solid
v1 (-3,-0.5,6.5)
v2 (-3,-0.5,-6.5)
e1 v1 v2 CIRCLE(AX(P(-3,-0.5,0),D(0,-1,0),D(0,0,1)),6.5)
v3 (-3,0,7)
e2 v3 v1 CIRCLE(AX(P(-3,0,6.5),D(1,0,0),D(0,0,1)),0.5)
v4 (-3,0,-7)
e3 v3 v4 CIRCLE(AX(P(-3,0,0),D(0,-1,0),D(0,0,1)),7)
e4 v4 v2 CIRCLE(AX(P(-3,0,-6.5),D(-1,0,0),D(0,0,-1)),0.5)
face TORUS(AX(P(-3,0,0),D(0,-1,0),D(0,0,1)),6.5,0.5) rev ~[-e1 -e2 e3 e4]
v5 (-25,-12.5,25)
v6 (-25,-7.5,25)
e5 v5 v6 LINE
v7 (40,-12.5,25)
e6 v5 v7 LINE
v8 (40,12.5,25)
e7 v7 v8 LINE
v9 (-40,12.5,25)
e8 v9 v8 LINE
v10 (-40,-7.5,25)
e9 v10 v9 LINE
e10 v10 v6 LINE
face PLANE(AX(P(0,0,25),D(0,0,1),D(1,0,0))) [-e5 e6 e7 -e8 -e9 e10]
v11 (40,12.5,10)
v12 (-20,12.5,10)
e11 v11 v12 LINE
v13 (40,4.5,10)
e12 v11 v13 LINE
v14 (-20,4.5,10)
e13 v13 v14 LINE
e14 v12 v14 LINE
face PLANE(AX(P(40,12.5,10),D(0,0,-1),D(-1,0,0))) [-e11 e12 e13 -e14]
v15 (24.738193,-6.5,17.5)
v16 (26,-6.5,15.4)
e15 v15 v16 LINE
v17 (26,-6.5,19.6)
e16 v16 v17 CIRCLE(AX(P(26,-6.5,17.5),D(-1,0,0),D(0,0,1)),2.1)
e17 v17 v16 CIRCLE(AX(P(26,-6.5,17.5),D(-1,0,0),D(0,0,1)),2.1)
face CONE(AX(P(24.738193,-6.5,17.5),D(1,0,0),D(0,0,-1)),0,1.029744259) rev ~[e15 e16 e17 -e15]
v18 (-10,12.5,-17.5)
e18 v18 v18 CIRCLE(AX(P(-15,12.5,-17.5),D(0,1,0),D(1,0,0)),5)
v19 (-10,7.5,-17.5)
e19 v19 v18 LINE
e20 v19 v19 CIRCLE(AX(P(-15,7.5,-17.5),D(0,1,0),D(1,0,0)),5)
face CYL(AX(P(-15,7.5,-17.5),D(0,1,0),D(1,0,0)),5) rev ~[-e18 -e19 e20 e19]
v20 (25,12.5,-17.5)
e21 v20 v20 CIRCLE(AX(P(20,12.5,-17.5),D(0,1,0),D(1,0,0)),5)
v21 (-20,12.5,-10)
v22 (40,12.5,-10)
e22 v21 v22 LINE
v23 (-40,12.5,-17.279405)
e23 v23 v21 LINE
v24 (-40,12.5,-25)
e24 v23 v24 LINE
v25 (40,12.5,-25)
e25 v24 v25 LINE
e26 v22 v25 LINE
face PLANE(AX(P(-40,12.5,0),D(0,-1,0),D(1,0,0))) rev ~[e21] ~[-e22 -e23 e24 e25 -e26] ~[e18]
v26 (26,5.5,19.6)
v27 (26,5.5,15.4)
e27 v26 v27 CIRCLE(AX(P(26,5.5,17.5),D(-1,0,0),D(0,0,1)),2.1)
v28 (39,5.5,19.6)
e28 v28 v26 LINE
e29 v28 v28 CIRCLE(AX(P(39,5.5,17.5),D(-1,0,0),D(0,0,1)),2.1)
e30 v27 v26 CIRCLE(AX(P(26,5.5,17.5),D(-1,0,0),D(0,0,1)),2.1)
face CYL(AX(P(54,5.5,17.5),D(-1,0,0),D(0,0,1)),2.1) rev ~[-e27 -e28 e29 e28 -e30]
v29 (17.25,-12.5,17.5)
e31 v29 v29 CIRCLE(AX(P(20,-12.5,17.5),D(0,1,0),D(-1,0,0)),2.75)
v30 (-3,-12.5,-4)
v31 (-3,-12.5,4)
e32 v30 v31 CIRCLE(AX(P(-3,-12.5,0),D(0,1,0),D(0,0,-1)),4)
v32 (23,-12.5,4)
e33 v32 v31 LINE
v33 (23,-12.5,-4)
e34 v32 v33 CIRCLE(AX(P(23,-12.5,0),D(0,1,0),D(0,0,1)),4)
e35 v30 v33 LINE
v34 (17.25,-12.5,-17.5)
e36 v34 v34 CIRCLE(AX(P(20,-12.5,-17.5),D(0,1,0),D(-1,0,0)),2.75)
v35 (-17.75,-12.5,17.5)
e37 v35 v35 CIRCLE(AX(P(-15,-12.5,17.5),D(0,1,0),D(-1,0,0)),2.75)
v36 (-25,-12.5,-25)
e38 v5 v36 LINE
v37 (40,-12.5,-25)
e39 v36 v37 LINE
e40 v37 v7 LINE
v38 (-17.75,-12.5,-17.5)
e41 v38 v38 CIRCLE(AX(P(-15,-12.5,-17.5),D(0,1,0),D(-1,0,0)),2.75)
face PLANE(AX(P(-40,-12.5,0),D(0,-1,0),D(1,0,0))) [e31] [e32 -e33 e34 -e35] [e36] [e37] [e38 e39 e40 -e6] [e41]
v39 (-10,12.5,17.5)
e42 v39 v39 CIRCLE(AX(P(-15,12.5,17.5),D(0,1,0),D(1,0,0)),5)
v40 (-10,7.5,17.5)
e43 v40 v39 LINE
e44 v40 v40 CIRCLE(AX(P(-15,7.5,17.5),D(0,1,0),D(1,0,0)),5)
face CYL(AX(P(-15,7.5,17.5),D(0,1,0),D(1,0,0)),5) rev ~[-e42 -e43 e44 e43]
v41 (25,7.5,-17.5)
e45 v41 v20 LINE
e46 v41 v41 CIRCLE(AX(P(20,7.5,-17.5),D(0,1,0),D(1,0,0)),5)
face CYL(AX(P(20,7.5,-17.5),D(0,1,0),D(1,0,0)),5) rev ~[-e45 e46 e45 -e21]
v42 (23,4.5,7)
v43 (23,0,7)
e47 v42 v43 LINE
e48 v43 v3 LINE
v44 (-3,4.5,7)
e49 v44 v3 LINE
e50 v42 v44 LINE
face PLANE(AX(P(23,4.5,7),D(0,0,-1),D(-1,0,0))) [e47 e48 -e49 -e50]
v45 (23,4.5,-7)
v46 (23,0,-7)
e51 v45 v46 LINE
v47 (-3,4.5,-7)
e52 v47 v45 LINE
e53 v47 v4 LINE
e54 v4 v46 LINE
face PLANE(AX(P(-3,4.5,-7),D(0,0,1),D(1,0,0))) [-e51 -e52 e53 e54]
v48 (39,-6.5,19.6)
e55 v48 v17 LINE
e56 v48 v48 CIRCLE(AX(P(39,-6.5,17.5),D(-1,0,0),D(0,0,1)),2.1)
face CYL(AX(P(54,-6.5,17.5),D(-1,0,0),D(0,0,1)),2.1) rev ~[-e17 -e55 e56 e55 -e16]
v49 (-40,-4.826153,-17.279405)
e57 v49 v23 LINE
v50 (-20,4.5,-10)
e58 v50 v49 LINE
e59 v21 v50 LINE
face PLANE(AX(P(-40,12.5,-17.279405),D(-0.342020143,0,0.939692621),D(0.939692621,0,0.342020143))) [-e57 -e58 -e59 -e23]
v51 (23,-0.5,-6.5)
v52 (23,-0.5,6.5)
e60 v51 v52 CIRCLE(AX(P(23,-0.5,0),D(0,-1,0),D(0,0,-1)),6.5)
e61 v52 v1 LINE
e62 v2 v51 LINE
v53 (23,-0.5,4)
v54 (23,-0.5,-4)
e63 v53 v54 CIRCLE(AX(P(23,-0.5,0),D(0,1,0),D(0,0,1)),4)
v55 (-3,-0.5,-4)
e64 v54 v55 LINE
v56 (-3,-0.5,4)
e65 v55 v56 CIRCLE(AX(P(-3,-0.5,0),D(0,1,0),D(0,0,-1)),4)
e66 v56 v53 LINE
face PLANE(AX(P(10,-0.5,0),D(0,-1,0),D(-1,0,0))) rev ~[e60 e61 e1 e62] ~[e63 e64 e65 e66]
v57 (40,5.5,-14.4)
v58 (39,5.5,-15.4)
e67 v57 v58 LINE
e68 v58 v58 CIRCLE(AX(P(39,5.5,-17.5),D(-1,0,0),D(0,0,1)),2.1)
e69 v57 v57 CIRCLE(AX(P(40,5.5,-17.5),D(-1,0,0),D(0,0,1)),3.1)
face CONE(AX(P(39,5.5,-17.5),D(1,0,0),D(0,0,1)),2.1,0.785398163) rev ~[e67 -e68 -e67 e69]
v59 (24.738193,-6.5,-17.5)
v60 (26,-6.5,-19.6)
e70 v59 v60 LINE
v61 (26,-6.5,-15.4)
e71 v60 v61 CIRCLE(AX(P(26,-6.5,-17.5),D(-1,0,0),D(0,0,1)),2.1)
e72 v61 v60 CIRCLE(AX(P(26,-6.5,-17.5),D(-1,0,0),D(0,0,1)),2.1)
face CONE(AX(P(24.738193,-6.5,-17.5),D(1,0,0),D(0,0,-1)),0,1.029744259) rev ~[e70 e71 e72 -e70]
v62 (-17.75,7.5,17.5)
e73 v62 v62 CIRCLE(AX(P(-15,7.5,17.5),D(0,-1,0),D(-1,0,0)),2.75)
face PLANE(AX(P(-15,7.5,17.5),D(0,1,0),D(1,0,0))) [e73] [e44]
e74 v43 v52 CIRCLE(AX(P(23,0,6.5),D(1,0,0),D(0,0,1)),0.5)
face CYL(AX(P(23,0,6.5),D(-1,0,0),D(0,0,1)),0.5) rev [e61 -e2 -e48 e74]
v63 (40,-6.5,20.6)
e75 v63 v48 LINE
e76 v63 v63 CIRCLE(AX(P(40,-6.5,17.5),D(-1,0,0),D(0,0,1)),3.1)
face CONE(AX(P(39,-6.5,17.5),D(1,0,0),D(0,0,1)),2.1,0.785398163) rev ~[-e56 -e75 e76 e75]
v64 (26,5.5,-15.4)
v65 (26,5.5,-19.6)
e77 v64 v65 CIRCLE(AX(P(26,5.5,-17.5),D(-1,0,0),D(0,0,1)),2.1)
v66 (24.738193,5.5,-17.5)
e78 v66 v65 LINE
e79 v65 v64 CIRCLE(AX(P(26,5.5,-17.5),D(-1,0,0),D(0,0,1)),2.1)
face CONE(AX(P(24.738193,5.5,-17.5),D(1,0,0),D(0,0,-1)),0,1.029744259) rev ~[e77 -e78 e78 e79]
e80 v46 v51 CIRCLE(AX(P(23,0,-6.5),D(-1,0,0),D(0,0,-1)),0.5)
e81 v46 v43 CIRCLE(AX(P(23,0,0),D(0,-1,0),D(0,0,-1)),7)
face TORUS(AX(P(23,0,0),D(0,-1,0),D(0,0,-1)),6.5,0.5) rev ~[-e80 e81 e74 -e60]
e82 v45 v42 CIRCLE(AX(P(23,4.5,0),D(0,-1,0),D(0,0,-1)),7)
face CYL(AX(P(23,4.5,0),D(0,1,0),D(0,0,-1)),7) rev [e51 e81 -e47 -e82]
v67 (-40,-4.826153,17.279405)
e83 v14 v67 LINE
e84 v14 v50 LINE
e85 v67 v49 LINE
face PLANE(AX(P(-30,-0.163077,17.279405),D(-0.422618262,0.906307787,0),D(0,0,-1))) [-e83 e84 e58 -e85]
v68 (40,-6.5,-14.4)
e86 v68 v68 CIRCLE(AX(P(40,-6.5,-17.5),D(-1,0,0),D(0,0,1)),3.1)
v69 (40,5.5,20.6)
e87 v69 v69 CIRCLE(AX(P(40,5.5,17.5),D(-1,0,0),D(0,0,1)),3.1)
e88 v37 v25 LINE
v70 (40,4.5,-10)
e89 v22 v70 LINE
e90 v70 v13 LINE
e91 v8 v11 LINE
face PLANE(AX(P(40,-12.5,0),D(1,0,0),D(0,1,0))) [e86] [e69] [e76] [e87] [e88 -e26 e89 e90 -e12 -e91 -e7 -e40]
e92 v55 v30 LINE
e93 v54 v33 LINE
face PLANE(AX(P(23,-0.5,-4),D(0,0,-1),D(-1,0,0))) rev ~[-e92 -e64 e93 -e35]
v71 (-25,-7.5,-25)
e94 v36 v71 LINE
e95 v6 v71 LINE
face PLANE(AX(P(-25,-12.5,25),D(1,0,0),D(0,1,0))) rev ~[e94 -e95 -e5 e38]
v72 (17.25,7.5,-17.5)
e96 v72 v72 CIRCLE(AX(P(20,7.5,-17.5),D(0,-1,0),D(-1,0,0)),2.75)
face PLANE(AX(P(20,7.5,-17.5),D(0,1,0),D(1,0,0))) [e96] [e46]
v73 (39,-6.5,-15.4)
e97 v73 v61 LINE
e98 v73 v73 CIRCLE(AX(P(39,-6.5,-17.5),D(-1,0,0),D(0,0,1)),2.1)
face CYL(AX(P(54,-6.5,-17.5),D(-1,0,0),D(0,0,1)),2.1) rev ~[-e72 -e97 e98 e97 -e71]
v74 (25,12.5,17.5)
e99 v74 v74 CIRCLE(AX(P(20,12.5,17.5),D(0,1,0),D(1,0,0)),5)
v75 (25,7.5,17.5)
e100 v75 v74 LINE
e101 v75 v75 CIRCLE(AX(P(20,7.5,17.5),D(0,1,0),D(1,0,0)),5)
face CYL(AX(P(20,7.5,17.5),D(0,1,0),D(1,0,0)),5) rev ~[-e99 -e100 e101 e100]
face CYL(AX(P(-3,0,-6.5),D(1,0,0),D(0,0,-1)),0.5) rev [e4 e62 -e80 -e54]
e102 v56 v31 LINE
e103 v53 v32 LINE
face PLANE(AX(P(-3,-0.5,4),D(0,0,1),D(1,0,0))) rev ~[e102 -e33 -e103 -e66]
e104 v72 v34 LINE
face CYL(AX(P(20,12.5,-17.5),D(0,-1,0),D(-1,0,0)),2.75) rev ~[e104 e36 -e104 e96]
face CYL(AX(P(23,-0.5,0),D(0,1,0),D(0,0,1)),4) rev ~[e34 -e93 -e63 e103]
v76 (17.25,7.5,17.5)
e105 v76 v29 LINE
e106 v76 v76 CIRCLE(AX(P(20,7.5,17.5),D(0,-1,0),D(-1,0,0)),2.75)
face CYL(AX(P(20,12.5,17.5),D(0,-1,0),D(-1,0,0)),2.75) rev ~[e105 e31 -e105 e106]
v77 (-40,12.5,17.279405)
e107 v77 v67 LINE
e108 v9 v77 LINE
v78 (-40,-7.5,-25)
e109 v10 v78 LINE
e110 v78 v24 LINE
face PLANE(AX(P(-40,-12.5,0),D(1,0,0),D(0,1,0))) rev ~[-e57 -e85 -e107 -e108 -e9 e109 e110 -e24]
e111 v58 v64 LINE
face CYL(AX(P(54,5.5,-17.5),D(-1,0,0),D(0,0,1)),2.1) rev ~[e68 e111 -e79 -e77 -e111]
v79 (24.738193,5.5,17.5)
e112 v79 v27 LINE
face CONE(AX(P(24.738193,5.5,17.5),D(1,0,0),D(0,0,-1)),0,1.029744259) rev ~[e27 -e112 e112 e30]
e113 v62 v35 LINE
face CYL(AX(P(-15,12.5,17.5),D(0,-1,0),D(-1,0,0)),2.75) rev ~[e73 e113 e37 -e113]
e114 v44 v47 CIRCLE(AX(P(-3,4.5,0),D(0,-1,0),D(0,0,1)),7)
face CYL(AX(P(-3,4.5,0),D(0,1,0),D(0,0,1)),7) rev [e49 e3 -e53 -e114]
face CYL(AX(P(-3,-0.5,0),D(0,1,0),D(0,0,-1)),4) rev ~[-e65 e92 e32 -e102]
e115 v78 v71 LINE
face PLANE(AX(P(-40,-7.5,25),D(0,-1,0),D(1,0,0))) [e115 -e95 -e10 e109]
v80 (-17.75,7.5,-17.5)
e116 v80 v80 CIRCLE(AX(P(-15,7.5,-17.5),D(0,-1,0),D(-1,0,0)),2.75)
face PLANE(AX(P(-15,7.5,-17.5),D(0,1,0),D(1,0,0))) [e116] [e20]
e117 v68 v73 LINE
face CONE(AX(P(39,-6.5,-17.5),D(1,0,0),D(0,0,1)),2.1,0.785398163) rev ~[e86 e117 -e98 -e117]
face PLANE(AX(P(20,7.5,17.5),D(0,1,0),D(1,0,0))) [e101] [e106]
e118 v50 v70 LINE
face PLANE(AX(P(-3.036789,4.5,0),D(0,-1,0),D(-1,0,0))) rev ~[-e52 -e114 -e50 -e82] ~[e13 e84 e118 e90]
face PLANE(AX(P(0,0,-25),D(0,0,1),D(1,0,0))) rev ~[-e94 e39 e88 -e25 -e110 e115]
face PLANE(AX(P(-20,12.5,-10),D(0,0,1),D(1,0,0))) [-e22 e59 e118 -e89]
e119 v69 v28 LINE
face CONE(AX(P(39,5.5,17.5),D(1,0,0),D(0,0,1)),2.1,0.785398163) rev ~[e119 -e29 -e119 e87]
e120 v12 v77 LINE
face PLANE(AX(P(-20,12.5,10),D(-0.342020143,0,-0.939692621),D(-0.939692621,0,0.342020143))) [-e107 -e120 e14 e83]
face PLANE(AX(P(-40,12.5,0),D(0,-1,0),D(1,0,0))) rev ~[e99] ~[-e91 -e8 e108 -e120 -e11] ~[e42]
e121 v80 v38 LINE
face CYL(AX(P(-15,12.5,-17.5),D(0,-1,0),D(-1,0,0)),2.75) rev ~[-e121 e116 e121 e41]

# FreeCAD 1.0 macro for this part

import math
import FreeCAD as App
import Part
import Sketcher
from FreeCAD import Vector
Q = App.Units.Quantity


def edges_at(feature, points):
    """Names of the edges that pass closest to the given points."""
    edges = feature.Shape.Edges
    near = lambda p: min(range(len(edges)), key=lambda i: edges[i].distToShape(Part.Vertex(*p))[0])
    return sorted({f"Edge{near(p) + 1}" for p in points})


def add_polygon(sketch, points):
    """Adds a closed chain of lines whose ends are joined by coincident constraints."""
    first, n = sketch.GeometryCount, len(points)
    for a, b in zip(points, points[1:] + points[:1]):
        sketch.addGeometry(Part.LineSegment(App.Vector(*a, 0), App.Vector(*b, 0)), False)
    for i in range(n):
        sketch.addConstraint(Sketcher.Constraint("Coincident", first + i, 2, first + (i + 1) % n, 1))

doc = App.newDocument("Part")
body = doc.addObject("PartDesign::Body", "Body")

sketch1 = doc.addObject("Sketcher::SketchObject", "Sketch")
body.addObject(sketch1)
sketch1.AttachmentSupport = (doc.XY_Plane, [""])
sketch1.MapMode = "FlatFace"
add_polygon(sketch1, [(-40, 12), (-40, -12), (40, -12), (40, 12)])
sketch1.addConstraint([
    Sketcher.Constraint("Vertical", 0),
    Sketcher.Constraint("Horizontal", 1),
    Sketcher.Constraint("Vertical", 2),
    Sketcher.Constraint("Horizontal", 3),
    Sketcher.Constraint("Symmetric", 0, 2, 2, 2, -1, 1),
    Sketcher.Constraint("DistanceX", 1, 1, 1, 2, Q("80 mm")),
    Sketcher.Constraint("DistanceY", 0, 2, 0, 1, Q("25 mm")),
])
pad1 = doc.addObject("PartDesign::Pad", "Pad")
body.addObject(pad1)
pad1.Profile = sketch1
pad1.Length = 50
pad1.Midplane = True

sketch2 = doc.addObject("Sketcher::SketchObject", "Sketch001")
body.addObject(sketch2)
sketch2.AttachmentSupport = (doc.XY_Plane, [""])
sketch2.MapMode = "FlatFace"
sketch2.AttachmentOffset = App.Placement(Vector(0, 0, 25), App.Rotation())
add_polygon(sketch2, [(-40, -8), (-40, -12), (-25, -12), (-25, -8)])
sketch2.addConstraint([
    Sketcher.Constraint("Vertical", 0),
    Sketcher.Constraint("Horizontal", 1),
    Sketcher.Constraint("Vertical", 2),
    Sketcher.Constraint("Horizontal", 3),
    Sketcher.Constraint("DistanceX", 1, 1, 1, 2, Q("15 mm")),
    Sketcher.Constraint("DistanceY", 0, 2, 0, 1, Q("5 mm")),
    Sketcher.Constraint("DistanceX", 0, 2, -1, 1, Q("40 mm")),
    Sketcher.Constraint("DistanceY", 0, 2, -1, 1, Q("12.5 mm")),
])
pocket1 = doc.addObject("PartDesign::Pocket", "Pocket")
body.addObject(pocket1)
pocket1.Profile = sketch2
pocket1.Type = "ThroughAll"

sketch3 = doc.addObject("Sketcher::SketchObject", "Sketch002")
body.addObject(sketch3)
sketch3.AttachmentSupport = (doc.XZ_Plane, [""])
sketch3.MapMode = "FlatFace"
sketch3.AttachmentOffset = App.Placement(Vector(0, 0, -12.5), App.Rotation())
add_polygon(sketch3, [(-20, -10), (-40, -17), (-40, 17), (-20, 10), (40, 10), (40, -10)])
sketch3.addConstraint([
    Sketcher.Constraint("Vertical", 1),
    Sketcher.Constraint("Horizontal", 3),
    Sketcher.Constraint("Vertical", 4),
    Sketcher.Constraint("Horizontal", 5),
    Sketcher.Constraint("Symmetric", 2, 2, 5, 2, -1),
    Sketcher.Constraint("Equal", 0, 2),
    Sketcher.Constraint("DistanceX", 3, 1, 3, 2, Q("60 mm")),
    Sketcher.Constraint("DistanceY", 4, 2, 4, 1, Q("20 mm")),
    Sketcher.Constraint("Angle", 0, Q("-160 deg")),
    Sketcher.Constraint("DistanceX", 0, 2, -1, 1, Q("40 mm")),
    Sketcher.Constraint("DistanceX", 2, 2, -1, 1, Q("20 mm")),
])
pocket2 = doc.addObject("PartDesign::Pocket", "Pocket001")
body.addObject(pocket2)
pocket2.Profile = sketch3
pocket2.Length = 8
pocket2.Reversed = True
doc.recompute()

chamfer = doc.addObject("PartDesign::Chamfer", "Chamfer")
body.addObject(chamfer)
chamfer.Base = (pocket2, edges_at(pocket2, [(-40, 4.5, 0)]))
chamfer.ChamferType = "Two distances"
chamfer.Size = 20
chamfer.Size2 = 9.326153
chamfer.FlipDirection = True

sketch4 = doc.addObject("Sketcher::SketchObject", "Sketch003")
body.addObject(sketch4)
sketch4.AttachmentSupport = (doc.XZ_Plane, [""])
sketch4.MapMode = "FlatFace"
sketch4.AttachmentOffset = App.Placement(Vector(0, 0, -4.5), App.Rotation())
sketch4.addGeometry([
    Part.LineSegment(Vector(23, -7, 0), Vector(-3, -7, 0)),
    Part.ArcOfCircle(Part.Circle(Vector(-3, 0, 0), Vector(0, 0, 1), 7), math.radians(90), math.radians(270)),
    Part.LineSegment(Vector(-3, 7, 0), Vector(23, 7, 0)),
    Part.ArcOfCircle(Part.Circle(Vector(23, 0, 0), Vector(0, 0, 1), 7), math.radians(-90), math.radians(90)),
], False)
sketch4.addConstraint([
    Sketcher.Constraint("Tangent", 0, 2, 1, 2),
    Sketcher.Constraint("Tangent", 1, 1, 2, 1),
    Sketcher.Constraint("Tangent", 2, 2, 3, 2),
    Sketcher.Constraint("Tangent", 3, 1, 0, 1),
    Sketcher.Constraint("Horizontal", 0),
    Sketcher.Constraint("Horizontal", 2),
    Sketcher.Constraint("PointOnObject", 1, 3, -1),
    Sketcher.Constraint("Radius", 1, Q("7 mm")),
    Sketcher.Constraint("DistanceX", 0, 2, 0, 1, Q("26 mm")),
    Sketcher.Constraint("DistanceX", 1, 3, -1, 1, Q("3 mm")),
])
pocket3 = doc.addObject("PartDesign::Pocket", "Pocket002")
body.addObject(pocket3)
pocket3.Profile = sketch4
pocket3.Length = 5
pocket3.Reversed = True

sketch5 = doc.addObject("Sketcher::SketchObject", "Sketch004")
body.addObject(sketch5)
sketch5.AttachmentSupport = (doc.XZ_Plane, [""])
sketch5.MapMode = "FlatFace"
sketch5.AttachmentOffset = App.Placement(Vector(0, 0, 0.5), App.Rotation())
sketch5.addGeometry([
    Part.LineSegment(Vector(-3, 4, 0), Vector(23, 4, 0)),
    Part.ArcOfCircle(Part.Circle(Vector(23, 0, 0), Vector(0, 0, 1), 4), math.radians(-90), math.radians(90)),
    Part.LineSegment(Vector(23, -4, 0), Vector(-3, -4, 0)),
    Part.ArcOfCircle(Part.Circle(Vector(-3, 0, 0), Vector(0, 0, 1), 4), math.radians(90), math.radians(270)),
], False)
sketch5.addConstraint([
    Sketcher.Constraint("Tangent", 0, 2, 1, 2),
    Sketcher.Constraint("Tangent", 1, 1, 2, 1),
    Sketcher.Constraint("Tangent", 2, 2, 3, 2),
    Sketcher.Constraint("Tangent", 3, 1, 0, 1),
    Sketcher.Constraint("Horizontal", 0),
    Sketcher.Constraint("Horizontal", 2),
    Sketcher.Constraint("PointOnObject", 1, 3, -1),
    Sketcher.Constraint("Radius", 1, Q("4 mm")),
    Sketcher.Constraint("DistanceX", 0, 1, 0, 2, Q("26 mm")),
    Sketcher.Constraint("DistanceX", -1, 1, 1, 3, Q("23 mm")),
])
pocket4 = doc.addObject("PartDesign::Pocket", "Pocket003")
body.addObject(pocket4)
pocket4.Profile = sketch5
pocket4.Type = "ThroughAll"
pocket4.Reversed = True

sketch6 = doc.addObject("Sketcher::SketchObject", "Sketch005")
body.addObject(sketch6)
sketch6.AttachmentSupport = (doc.XZ_Plane, [""])
sketch6.MapMode = "FlatFace"
sketch6.AttachmentOffset = App.Placement(Vector(0, 0, -12.5), App.Rotation())
sketch6.addGeometry([
    Part.Circle(Vector(-15, -17.5, 0), Vector(0, 0, 1), 2.8),
    Part.Circle(Vector(20, -17.5, 0), Vector(0, 0, 1), 2.8),
    Part.Circle(Vector(20, 17.5, 0), Vector(0, 0, 1), 2.8),
    Part.Circle(Vector(-15, 17.5, 0), Vector(0, 0, 1), 2.8),
], False)
sketch6.addConstraint([
    Sketcher.Constraint("Equal", 0, 1),
    Sketcher.Constraint("Equal", 1, 2),
    Sketcher.Constraint("Equal", 2, 3),
    Sketcher.Constraint("Symmetric", 1, 3, 2, 3, -1),
    Sketcher.Constraint("Symmetric", 0, 3, 3, 3, -1),
    Sketcher.Constraint("Horizontal", 0, 3, 1, 3),
    Sketcher.Constraint("Diameter", 0, Q("5.5 mm")),
    Sketcher.Constraint("DistanceX", 0, 3, -1, 1, Q("15 mm")),
    Sketcher.Constraint("DistanceX", -1, 1, 1, 3, Q("20 mm")),
    Sketcher.Constraint("DistanceY", 1, 3, 2, 3, Q("35 mm")),
])
doc.recompute()
hole = doc.addObject("PartDesign::Hole", "Hole")
body.addObject(hole)
hole.Profile = sketch6
hole.ThreadType = "None"
hole.Diameter = 5.5
hole.DepthType = "Dimension"
hole.Depth = 25
hole.DrillPoint = "Angled"
hole.DrillPointAngle = 118
hole.HoleCutType = "Counterbore"
hole.HoleCutDiameter = 10
hole.HoleCutDepth = 5
hole.Reversed = True

sketch7 = doc.addObject("Sketcher::SketchObject", "Sketch006")
body.addObject(sketch7)
sketch7.AttachmentSupport = (doc.YZ_Plane, [""])
sketch7.MapMode = "FlatFace"
sketch7.AttachmentOffset = App.Placement(Vector(0, 0, 40), App.Rotation())
sketch7.addGeometry([
    Part.Circle(Vector(5.5, 17.5, 0), Vector(0, 0, 1), 2.1),
    Part.Circle(Vector(-6.5, 17.5, 0), Vector(0, 0, 1), 2.1),
    Part.Circle(Vector(5.5, -17.5, 0), Vector(0, 0, 1), 2.1),
    Part.Circle(Vector(-6.5, -17.5, 0), Vector(0, 0, 1), 2.1),
], False)
sketch7.addConstraint([
    Sketcher.Constraint("Equal", 0, 1),
    Sketcher.Constraint("Equal", 1, 2),
    Sketcher.Constraint("Equal", 2, 3),
    Sketcher.Constraint("Symmetric", 0, 3, 2, 3, -1),
    Sketcher.Constraint("Symmetric", 1, 3, 3, 3, -1),
    Sketcher.Constraint("Horizontal", 0, 3, 1, 3),
    Sketcher.Constraint("Diameter", 0, Q("4.2 mm")),
    Sketcher.Constraint("DistanceX", 1, 3, 0, 3, Q("12 mm")),
    Sketcher.Constraint("DistanceY", 2, 3, 0, 3, Q("35 mm")),
    Sketcher.Constraint("DistanceX", -1, 1, 0, 3, Q("5.5 mm")),
])
doc.recompute()
hole2 = doc.addObject("PartDesign::Hole", "Hole001")
body.addObject(hole2)
hole2.Profile = sketch7
hole2.ThreadType = "None"
hole2.Diameter = 4.2
hole2.DepthType = "Dimension"
hole2.Depth = 14
hole2.DrillPoint = "Angled"
hole2.DrillPointAngle = 118
doc.recompute()

chamfer2 = doc.addObject("PartDesign::Chamfer", "Chamfer001")
body.addObject(chamfer2)
chamfer2.Base = (hole2, edges_at(hole2, [
    (40, -6.5, -19.6),
    (40, 5.5, -19.6),
    (40, -6.5, 15.4),
    (40, 5.5, 15.4),
]))
chamfer2.Size = 1
doc.recompute()

fillet = doc.addObject("PartDesign::Fillet", "Fillet")
body.addObject(fillet)
fillet.Base = (chamfer2, edges_at(chamfer2, [
    (-10, -0.5, 0),
    (10, -0.5, -7),
    (30, -0.5, 0),
    (10, -0.5, 7),
]))
fillet.Radius = 0.5

doc.recompute()
